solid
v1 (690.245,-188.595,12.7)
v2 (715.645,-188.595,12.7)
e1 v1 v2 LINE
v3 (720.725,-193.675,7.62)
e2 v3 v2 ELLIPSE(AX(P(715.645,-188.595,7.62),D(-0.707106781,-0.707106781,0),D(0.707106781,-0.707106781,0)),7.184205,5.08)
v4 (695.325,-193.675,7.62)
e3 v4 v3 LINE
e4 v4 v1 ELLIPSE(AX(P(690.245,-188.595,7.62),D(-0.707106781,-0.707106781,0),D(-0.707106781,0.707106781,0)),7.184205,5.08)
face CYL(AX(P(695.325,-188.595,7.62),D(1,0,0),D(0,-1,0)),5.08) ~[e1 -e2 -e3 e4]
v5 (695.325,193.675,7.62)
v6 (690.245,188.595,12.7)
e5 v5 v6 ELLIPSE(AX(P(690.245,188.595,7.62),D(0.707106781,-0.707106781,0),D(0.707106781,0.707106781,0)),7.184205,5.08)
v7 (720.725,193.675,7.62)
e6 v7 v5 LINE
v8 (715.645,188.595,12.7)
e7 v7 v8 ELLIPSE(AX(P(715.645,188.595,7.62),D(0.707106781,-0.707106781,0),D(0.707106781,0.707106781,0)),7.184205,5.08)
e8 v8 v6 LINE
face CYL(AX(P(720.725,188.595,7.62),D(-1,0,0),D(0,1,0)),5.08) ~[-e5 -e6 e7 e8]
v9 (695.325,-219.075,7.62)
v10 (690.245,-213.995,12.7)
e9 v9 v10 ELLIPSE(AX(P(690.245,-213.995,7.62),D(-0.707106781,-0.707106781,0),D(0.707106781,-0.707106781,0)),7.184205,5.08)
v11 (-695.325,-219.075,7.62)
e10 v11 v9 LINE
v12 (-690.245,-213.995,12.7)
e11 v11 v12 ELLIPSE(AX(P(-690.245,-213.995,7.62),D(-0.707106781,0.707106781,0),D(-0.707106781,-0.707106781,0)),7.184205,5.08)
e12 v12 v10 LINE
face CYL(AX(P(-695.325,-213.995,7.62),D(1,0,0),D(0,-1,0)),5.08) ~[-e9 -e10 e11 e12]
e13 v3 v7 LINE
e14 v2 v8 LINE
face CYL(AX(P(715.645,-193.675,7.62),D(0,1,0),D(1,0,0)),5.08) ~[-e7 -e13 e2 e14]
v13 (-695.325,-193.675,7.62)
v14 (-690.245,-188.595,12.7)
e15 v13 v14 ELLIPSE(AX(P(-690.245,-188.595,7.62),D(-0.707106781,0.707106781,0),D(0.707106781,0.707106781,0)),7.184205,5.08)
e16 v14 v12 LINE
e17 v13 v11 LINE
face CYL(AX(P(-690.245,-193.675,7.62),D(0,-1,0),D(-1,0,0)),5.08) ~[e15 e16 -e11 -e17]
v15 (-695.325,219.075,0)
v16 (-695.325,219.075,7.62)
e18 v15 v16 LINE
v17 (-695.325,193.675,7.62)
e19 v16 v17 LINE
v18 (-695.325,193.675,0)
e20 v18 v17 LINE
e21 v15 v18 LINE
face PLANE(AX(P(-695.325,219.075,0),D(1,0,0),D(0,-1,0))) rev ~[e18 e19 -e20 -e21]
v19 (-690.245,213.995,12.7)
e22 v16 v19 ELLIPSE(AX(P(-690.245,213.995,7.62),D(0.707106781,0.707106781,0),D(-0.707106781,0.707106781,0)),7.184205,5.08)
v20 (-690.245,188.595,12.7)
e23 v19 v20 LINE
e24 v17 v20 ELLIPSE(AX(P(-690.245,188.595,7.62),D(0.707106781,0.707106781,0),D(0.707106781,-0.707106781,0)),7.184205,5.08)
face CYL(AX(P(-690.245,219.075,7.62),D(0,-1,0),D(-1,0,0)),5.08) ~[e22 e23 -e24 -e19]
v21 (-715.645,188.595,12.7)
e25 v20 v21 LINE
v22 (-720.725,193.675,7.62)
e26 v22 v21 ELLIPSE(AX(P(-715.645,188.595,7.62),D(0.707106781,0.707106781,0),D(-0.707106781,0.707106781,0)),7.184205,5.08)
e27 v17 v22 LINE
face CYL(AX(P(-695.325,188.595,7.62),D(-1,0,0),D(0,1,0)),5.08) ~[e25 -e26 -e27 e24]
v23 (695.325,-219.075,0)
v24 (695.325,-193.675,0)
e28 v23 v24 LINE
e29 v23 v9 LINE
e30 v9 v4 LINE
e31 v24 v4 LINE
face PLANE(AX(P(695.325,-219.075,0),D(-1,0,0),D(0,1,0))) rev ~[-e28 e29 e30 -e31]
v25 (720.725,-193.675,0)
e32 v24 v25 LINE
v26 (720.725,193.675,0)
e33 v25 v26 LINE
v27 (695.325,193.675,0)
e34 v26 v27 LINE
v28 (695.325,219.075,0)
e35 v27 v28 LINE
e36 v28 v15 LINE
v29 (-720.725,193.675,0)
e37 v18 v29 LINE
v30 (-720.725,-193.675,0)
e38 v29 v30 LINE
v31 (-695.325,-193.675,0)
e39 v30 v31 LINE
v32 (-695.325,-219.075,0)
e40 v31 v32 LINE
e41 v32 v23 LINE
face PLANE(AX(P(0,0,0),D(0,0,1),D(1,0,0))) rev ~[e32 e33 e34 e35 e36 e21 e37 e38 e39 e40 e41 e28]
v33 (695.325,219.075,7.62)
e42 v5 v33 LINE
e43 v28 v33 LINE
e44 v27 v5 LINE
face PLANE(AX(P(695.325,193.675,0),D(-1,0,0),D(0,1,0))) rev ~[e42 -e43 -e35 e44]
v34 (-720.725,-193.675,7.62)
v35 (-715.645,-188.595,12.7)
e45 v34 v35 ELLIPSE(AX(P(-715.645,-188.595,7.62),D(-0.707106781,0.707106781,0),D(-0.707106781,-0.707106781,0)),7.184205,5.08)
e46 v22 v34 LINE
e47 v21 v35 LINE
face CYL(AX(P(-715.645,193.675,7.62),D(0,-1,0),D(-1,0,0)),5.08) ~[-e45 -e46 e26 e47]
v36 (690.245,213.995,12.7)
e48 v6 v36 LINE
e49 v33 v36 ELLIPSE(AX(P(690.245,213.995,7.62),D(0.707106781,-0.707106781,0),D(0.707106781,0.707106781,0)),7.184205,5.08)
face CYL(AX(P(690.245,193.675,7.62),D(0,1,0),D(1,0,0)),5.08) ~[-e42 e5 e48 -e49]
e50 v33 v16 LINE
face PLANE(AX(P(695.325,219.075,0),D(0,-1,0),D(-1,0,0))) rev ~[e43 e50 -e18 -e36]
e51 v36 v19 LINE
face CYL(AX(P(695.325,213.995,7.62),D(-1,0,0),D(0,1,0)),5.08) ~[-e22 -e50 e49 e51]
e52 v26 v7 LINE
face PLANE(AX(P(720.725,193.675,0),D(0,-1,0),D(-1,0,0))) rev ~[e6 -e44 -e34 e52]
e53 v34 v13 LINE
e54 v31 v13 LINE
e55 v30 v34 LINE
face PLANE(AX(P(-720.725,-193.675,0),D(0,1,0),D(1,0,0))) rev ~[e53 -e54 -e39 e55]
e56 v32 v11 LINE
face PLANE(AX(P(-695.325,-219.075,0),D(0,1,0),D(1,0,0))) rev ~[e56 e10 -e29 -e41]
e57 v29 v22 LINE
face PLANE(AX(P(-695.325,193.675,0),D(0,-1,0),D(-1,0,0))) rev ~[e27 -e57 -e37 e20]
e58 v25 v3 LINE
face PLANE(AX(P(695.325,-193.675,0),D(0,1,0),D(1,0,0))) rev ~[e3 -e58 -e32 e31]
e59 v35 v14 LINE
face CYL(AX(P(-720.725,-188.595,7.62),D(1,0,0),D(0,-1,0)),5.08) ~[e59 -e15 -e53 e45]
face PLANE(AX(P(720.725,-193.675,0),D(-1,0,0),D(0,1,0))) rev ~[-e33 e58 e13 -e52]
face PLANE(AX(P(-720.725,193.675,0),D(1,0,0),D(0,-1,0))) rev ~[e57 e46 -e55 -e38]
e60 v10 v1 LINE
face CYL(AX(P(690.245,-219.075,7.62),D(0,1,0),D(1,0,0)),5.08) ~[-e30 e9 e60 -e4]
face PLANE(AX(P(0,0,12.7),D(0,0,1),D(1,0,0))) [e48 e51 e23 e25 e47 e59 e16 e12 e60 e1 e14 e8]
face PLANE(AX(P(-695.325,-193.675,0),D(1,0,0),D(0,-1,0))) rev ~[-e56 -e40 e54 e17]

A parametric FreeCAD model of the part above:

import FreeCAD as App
import Part
import Sketcher
Q = App.Units.Quantity


def edges_at(feature, points):
    """Names of the edges that pass closest to the given points."""
    edges = feature.Shape.Edges
    near = lambda p: min(range(len(edges)), key=lambda i: edges[i].distToShape(Part.Vertex(*p))[0])
    return sorted({f"Edge{near(p) + 1}" for p in points})

doc = App.newDocument("Part")
body = doc.addObject("PartDesign::Body", "Body")

# Sketch on XY plane
sketch1 = body.newObject("Sketcher::SketchObject", "Sketch")
sketch1.AttachmentSupport = (doc.getObject("XY_Plane"), [""])
sketch1.MapMode = "FlatFace"
sketch1.addGeometry(Part.LineSegment(App.Vector(695, 194, 0), App.Vector(695, 219, 0)), False)
sketch1.addGeometry(Part.LineSegment(App.Vector(695, 219, 0), App.Vector(-695, 219, 0)), False)
sketch1.addGeometry(Part.LineSegment(App.Vector(-695, 219, 0), App.Vector(-695, 194, 0)), False)
sketch1.addGeometry(Part.LineSegment(App.Vector(-695, 194, 0), App.Vector(-721, 194, 0)), False)
sketch1.addGeometry(Part.LineSegment(App.Vector(-721, 194, 0), App.Vector(-721, -194, 0)), False)
sketch1.addGeometry(Part.LineSegment(App.Vector(-721, -194, 0), App.Vector(-695, -194, 0)), False)
sketch1.addGeometry(Part.LineSegment(App.Vector(-695, -194, 0), App.Vector(-695, -219, 0)), False)
sketch1.addGeometry(Part.LineSegment(App.Vector(-695, -219, 0), App.Vector(695, -219, 0)), False)
sketch1.addGeometry(Part.LineSegment(App.Vector(695, -219, 0), App.Vector(695, -194, 0)), False)
sketch1.addGeometry(Part.LineSegment(App.Vector(695, -194, 0), App.Vector(721, -194, 0)), False)
sketch1.addGeometry(Part.LineSegment(App.Vector(721, -194, 0), App.Vector(721, 194, 0)), False)
sketch1.addGeometry(Part.LineSegment(App.Vector(721, 194, 0), App.Vector(695, 194, 0)), False)
sketch1.addConstraint(Sketcher.Constraint("Coincident", 0, 2, 1, 1))
sketch1.addConstraint(Sketcher.Constraint("Coincident", 1, 2, 2, 1))
sketch1.addConstraint(Sketcher.Constraint("Coincident", 2, 2, 3, 1))
sketch1.addConstraint(Sketcher.Constraint("Coincident", 3, 2, 4, 1))
sketch1.addConstraint(Sketcher.Constraint("Coincident", 4, 2, 5, 1))
sketch1.addConstraint(Sketcher.Constraint("Coincident", 5, 2, 6, 1))
sketch1.addConstraint(Sketcher.Constraint("Coincident", 6, 2, 7, 1))
sketch1.addConstraint(Sketcher.Constraint("Coincident", 7, 2, 8, 1))
sketch1.addConstraint(Sketcher.Constraint("Coincident", 8, 2, 9, 1))
sketch1.addConstraint(Sketcher.Constraint("Coincident", 9, 2, 10, 1))
sketch1.addConstraint(Sketcher.Constraint("Coincident", 10, 2, 11, 1))
sketch1.addConstraint(Sketcher.Constraint("Coincident", 11, 2, 0, 1))
sketch1.addConstraint(Sketcher.Constraint("Vertical", 0))
sketch1.addConstraint(Sketcher.Constraint("Horizontal", 1))
sketch1.addConstraint(Sketcher.Constraint("Vertical", 2))
sketch1.addConstraint(Sketcher.Constraint("Horizontal", 3))
sketch1.addConstraint(Sketcher.Constraint("Vertical", 4))
sketch1.addConstraint(Sketcher.Constraint("Horizontal", 5))
sketch1.addConstraint(Sketcher.Constraint("Vertical", 6))
sketch1.addConstraint(Sketcher.Constraint("Horizontal", 7))
sketch1.addConstraint(Sketcher.Constraint("Vertical", 8))
sketch1.addConstraint(Sketcher.Constraint("Horizontal", 9))
sketch1.addConstraint(Sketcher.Constraint("Vertical", 10))
sketch1.addConstraint(Sketcher.Constraint("Horizontal", 11))
sketch1.addConstraint(Sketcher.Constraint("Symmetric", 0, 2, 6, 2, -1, 1))
sketch1.addConstraint(Sketcher.Constraint("Symmetric", 2, 2, 8, 2, -1, 1))
sketch1.addConstraint(Sketcher.Constraint("Symmetric", 4, 2, 10, 2, -1, 1))
sketch1.addConstraint(Sketcher.Constraint("Symmetric", 5, 2, 8, 2, -2))
sketch1.addConstraint(Sketcher.Constraint("Equal", 11, 0))
sketch1.addConstraint(Sketcher.Constraint("DistanceX", 3, 2, 3, 1, Q("1 in")))
sketch1.addConstraint(Sketcher.Constraint("DistanceX", 1, 2, 1, 1, Q("54.75 in")))
sketch1.addConstraint(Sketcher.Constraint("DistanceY", 4, 2, 4, 1, Q("15.25 in")))
pad1 = body.newObject("PartDesign::Pad", "Pad")
pad1.Profile = sketch1
pad1.Length = Q("0.5 in")
doc.recompute()

fillet = body.newObject("PartDesign::Fillet", "Fillet")
fillet.Base = (pad1, edges_at(pad1, [
    (695.325, 206.375, 12.7),
    (0, 219.075, 12.7),
    (-695.325, 206.375, 12.7),
    (-708.025, 193.675, 12.7),
    (-720.725, 0, 12.7),
    (-708.025, -193.675, 12.7),
    (-695.325, -206.375, 12.7),
    (0, -219.075, 12.7),
    (695.325, -206.375, 12.7),
    (708.025, -193.675, 12.7),
    (720.725, 0, 12.7),
    (708.025, 193.675, 12.7),
]))
fillet.Radius = Q("0.2 in")

doc.recompute()
